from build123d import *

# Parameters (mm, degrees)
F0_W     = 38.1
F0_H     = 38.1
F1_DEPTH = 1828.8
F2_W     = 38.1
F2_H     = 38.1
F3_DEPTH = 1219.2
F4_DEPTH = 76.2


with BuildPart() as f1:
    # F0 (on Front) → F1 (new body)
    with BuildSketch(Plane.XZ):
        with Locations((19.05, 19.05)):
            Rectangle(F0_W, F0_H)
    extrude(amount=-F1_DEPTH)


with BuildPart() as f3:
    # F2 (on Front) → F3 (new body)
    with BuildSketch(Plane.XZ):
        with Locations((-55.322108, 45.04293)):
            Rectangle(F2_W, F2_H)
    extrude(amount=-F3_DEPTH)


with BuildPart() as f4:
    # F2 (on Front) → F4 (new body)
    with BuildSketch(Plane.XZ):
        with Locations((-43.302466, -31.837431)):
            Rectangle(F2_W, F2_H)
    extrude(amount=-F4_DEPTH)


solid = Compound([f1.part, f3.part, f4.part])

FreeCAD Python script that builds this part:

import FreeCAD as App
import Part
import Sketcher
from FreeCAD import Vector
Q = App.Units.Quantity


def add_polygon(sketch, points):
    """Adds a closed chain of lines whose ends are joined by coincident constraints."""
    first, n = sketch.GeometryCount, len(points)
    for a, b in zip(points, points[1:] + points[:1]):
        sketch.addGeometry(Part.LineSegment(App.Vector(*a, 0), App.Vector(*b, 0)), False)
    for i in range(n):
        sketch.addConstraint(Sketcher.Constraint("Coincident", first + i, 2, first + (i + 1) % n, 1))

doc = App.newDocument("Part")
body = doc.addObject("PartDesign::Body", "Body")

# Sketch on XZ plane
sketch1 = body.newObject("Sketcher::SketchObject", "Sketch")
sketch1.AttachmentSupport = (doc.getObject("XZ_Plane"), [""])
sketch1.MapMode = "FlatFace"
add_polygon(sketch1, [(0, 38), (0, 0), (38, 0), (38, 38)])  # lines 0-3
sketch1.addConstraint([
    Sketcher.Constraint("Vertical", 0),
    Sketcher.Constraint("Horizontal", 1),
    Sketcher.Constraint("Vertical", 2),
    Sketcher.Constraint("Horizontal", 3),
    Sketcher.Constraint("Coincident", 0, 2, -1, 1),
    Sketcher.Constraint("Equal", 3, 0),
    Sketcher.Constraint("DistanceX", 1, 1, 1, 2, Q("1.5 in")),
])
pad1 = body.newObject("PartDesign::Pad", "Pad")
pad1.Profile = sketch1
pad1.Length = Q("72 in")
pad1.Reversed = True
body2 = doc.addObject("PartDesign::Body", "Body001")

# Sketch on XZ plane
sketch2 = body2.newObject("Sketcher::SketchObject", "Sketch001")
sketch2.AttachmentSupport = (doc.getObject("XZ_Plane001"), [""])
sketch2.MapMode = "FlatFace"
add_polygon(sketch2, [(-74, 64), (-74, 26), (-36, 26), (-36, 64)])  # lines 0-3
sketch2.addConstraint([
    Sketcher.Constraint("Vertical", 0),
    Sketcher.Constraint("Horizontal", 1),
    Sketcher.Constraint("Vertical", 2),
    Sketcher.Constraint("Horizontal", 3),
    Sketcher.Constraint("Equal", 3, 0),
    Sketcher.Constraint("DistanceX", 1, 1, 1, 2, Q("1.5 in")),
    Sketcher.Constraint("DistanceY", -1, 1, 0, 2, 25.99293),
    Sketcher.Constraint("DistanceX", 1, 2, -1, 1, 36.272108),
])
pad2 = body2.newObject("PartDesign::Pad", "Pad001")
pad2.Profile = sketch2
pad2.Length = Q("48 in")
pad2.Reversed = True
body3 = doc.addObject("PartDesign::Body", "Body002")

# Sketch on XZ plane
sketch3 = body3.newObject("Sketcher::SketchObject", "Sketch002")
sketch3.AttachmentSupport = (doc.getObject("XZ_Plane002"), [""])
sketch3.MapMode = "FlatFace"
add_polygon(sketch3, [(-62, -13), (-62, -51), (-24, -51), (-24, -13)])  # lines 0-3
sketch3.addConstraint([
    Sketcher.Constraint("Vertical", 0),
    Sketcher.Constraint("Horizontal", 1),
    Sketcher.Constraint("Vertical", 2),
    Sketcher.Constraint("Horizontal", 3),
    Sketcher.Constraint("Equal", 3, 0),
    Sketcher.Constraint("DistanceX", 1, 1, 1, 2, Q("1.5 in")),
    Sketcher.Constraint("DistanceY", 0, 2, -1, 1, 50.887431),
    Sketcher.Constraint("DistanceX", 0, 2, -1, 1, 62.352466),
])
pad3 = body3.newObject("PartDesign::Pad", "Pad002")
pad3.Profile = sketch3
pad3.Length = Q("3 in")
pad3.Reversed = True

doc.recompute()
